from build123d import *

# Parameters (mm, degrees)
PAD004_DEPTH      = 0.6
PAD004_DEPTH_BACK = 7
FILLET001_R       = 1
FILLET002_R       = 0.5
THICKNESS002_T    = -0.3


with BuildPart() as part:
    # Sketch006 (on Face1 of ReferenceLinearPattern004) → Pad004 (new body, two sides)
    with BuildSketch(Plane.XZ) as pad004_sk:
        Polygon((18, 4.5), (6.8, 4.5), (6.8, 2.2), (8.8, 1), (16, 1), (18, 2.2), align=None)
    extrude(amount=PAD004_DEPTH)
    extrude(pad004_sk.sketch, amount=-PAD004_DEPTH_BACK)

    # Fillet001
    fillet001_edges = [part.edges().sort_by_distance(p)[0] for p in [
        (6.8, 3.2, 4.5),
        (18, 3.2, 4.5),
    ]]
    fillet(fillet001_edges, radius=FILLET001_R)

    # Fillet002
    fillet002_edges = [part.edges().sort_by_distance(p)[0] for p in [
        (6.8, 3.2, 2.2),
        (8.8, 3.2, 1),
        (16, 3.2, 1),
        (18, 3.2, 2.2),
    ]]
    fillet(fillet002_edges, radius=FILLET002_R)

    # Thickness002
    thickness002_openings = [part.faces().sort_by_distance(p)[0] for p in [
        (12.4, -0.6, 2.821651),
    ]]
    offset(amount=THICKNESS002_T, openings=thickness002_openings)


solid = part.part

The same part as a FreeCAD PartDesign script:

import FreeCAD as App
import Part
import Sketcher


def edges_at(feature, points):
    """Names of the edges that pass closest to the given points."""
    edges = feature.Shape.Edges
    near = lambda p: min(range(len(edges)), key=lambda i: edges[i].distToShape(Part.Vertex(*p))[0])
    return sorted({f"Edge{near(p) + 1}" for p in points})


def faces_at(feature, points):
    """Names of the faces that lie closest to the given points."""
    faces = feature.Shape.Faces
    near = lambda p: min(range(len(faces)), key=lambda i: faces[i].distToShape(Part.Vertex(*p))[0])
    return sorted({f"Face{near(p) + 1}" for p in points})


def add_polygon(sketch, points):
    """Adds a closed chain of lines whose ends are joined by coincident constraints."""
    first, n = sketch.GeometryCount, len(points)
    for a, b in zip(points, points[1:] + points[:1]):
        sketch.addGeometry(Part.LineSegment(App.Vector(*a, 0), App.Vector(*b, 0)), False)
    for i in range(n):
        sketch.addConstraint(Sketcher.Constraint("Coincident", first + i, 2, first + (i + 1) % n, 1))

doc = App.newDocument("Part")
params = doc.addObject("Spreadsheet::Sheet", "Params")
for row, (alias, value) in enumerate([
    ("sketch1_width", "11.2 mm"),
    ("sketch1_width2", "7.2 mm"),
    ("sketch1_height", "2.3 mm"),
    ("pad1_length", "0.6 mm"),
    ("pad1_length2", "7 mm"),
    ("fillet_radius", "1 mm"),
    ("fillet2_radius", "0.5 mm"),
    ("thickness_wall", "0.3 mm"),
], start=1):
    params.set(f"A{row}", alias)
    params.set(f"B{row}", "=" + value)
    params.setAlias(f"B{row}", alias)

body = doc.addObject("PartDesign::Body", "Body")

sketch1 = doc.addObject("Sketcher::SketchObject", "Sketch")
body.addObject(sketch1)
sketch1.AttachmentSupport = (doc.XZ_Plane, [""])
sketch1.MapMode = "FlatFace"
add_polygon(sketch1, [(18, 4.5), (6.8, 4.5), (6.8, 2.2), (8.8, 1), (16, 1), (18, 2.2)])
sketch1.addConstraint([
    Sketcher.Constraint("Horizontal", 0),
    Sketcher.Constraint("Vertical", 1),
    Sketcher.Constraint("Horizontal", 3),
    Sketcher.Constraint("Vertical", 5),
    Sketcher.Constraint("Horizontal", 1, 2, 4, 2),
    Sketcher.Constraint("Equal", 2, 4),
    Sketcher.Constraint("DistanceX", 0, 2, 0, 1, 11.2),
    Sketcher.Constraint("DistanceX", 3, 1, 3, 2, 7.2),
    Sketcher.Constraint("DistanceY", 1, 2, 1, 1, 2.3),
    Sketcher.Constraint("DistanceY", -1, 1, 2, 2, 1.0),
    Sketcher.Constraint("DistanceX", -1, 1, 3, 2, 16.0),
    Sketcher.Constraint("DistanceY", -1, 1, 0, 2, 4.5),
])
sketch1.setExpression("Constraints[12]", "Params.sketch1_width")
sketch1.setExpression("Constraints[13]", "Params.sketch1_width2")
sketch1.setExpression("Constraints[14]", "Params.sketch1_height")
pad1 = doc.addObject("PartDesign::Pad", "Pad")
body.addObject(pad1)
pad1.Profile = sketch1
pad1.Type = "TwoLengths"
pad1.setExpression("Length", "Params.pad1_length")
pad1.setExpression("Length2", "Params.pad1_length2")
doc.recompute()

fillet = doc.addObject("PartDesign::Fillet", "Fillet")
body.addObject(fillet)
fillet.Base = (pad1, edges_at(pad1, [(6.8, 3.2, 4.5), (18, 3.2, 4.5)]))
fillet.setExpression("Radius", "Params.fillet_radius")
doc.recompute()

fillet2 = doc.addObject("PartDesign::Fillet", "Fillet001")
body.addObject(fillet2)
fillet2.Base = (fillet, edges_at(fillet, [
    (6.8, 3.2, 2.2),
    (8.8, 3.2, 1),
    (16, 3.2, 1),
    (18, 3.2, 2.2),
]))
fillet2.setExpression("Radius", "Params.fillet2_radius")
doc.recompute()

thickness = doc.addObject("PartDesign::Thickness", "Thickness")
body.addObject(thickness)
thickness.Base = (fillet2, faces_at(fillet2, [(12.4, -0.6, 2.75)]))
thickness.setExpression("Value", "Params.thickness_wall")
thickness.Reversed = True
thickness.Join = "Arc"

doc.recompute()
